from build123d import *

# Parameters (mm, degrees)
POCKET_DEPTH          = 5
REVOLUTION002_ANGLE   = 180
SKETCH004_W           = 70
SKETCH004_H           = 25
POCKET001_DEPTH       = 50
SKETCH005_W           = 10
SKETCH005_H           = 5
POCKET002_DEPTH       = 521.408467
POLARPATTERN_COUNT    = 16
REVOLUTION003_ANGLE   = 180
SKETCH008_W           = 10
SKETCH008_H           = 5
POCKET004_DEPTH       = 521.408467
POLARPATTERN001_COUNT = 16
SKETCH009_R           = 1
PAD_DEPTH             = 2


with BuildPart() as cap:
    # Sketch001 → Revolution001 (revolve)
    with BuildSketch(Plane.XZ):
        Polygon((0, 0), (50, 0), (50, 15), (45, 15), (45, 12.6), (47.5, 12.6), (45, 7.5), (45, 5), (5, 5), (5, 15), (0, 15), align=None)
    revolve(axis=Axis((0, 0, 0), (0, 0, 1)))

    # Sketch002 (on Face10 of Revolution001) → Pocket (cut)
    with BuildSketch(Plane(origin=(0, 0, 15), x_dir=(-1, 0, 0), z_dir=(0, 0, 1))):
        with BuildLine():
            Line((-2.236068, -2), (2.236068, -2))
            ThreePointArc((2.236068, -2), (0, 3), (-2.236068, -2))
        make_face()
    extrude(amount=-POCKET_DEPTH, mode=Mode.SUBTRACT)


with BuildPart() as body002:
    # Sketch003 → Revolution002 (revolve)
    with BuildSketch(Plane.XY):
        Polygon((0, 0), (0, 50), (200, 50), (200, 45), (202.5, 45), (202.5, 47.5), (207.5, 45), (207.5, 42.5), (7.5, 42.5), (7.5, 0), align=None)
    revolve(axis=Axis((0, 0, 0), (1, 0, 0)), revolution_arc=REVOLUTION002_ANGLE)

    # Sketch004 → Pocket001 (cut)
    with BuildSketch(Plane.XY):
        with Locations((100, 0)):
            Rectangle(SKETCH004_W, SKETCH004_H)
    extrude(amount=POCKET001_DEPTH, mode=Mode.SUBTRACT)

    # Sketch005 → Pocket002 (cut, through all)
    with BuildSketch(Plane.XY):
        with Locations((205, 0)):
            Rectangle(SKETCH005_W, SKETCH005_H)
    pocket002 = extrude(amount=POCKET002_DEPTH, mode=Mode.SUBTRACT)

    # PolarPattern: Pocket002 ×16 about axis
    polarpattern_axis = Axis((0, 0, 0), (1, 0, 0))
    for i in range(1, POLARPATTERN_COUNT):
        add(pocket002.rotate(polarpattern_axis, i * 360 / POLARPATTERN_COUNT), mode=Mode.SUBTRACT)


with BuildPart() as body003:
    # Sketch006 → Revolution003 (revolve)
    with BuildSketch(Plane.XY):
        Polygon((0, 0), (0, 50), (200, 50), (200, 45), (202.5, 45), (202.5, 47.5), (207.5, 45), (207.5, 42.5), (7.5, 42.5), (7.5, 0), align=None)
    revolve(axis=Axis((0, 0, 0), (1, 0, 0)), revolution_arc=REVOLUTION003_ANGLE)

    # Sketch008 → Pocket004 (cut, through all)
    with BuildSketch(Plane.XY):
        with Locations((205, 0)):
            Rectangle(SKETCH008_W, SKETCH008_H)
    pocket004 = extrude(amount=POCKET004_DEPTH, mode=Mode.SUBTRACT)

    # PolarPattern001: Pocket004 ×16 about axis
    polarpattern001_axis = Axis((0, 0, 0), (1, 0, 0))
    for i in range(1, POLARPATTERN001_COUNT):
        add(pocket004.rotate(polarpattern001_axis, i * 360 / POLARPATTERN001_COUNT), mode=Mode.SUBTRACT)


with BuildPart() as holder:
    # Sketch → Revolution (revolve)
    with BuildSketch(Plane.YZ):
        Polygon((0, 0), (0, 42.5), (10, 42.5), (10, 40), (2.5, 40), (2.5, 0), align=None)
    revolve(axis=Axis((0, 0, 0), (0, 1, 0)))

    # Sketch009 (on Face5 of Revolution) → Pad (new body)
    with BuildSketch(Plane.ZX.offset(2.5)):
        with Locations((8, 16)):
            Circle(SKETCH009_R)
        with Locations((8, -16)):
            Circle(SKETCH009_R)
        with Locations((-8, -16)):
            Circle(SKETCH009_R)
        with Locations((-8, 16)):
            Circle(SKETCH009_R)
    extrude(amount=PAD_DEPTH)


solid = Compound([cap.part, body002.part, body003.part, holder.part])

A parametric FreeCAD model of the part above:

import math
import FreeCAD as App
import Part
import Sketcher
from FreeCAD import Vector


def add_polygon(sketch, points):
    """Adds a closed chain of lines whose ends are joined by coincident constraints."""
    first, n = sketch.GeometryCount, len(points)
    for a, b in zip(points, points[1:] + points[:1]):
        sketch.addGeometry(Part.LineSegment(App.Vector(*a, 0), App.Vector(*b, 0)), False)
    for i in range(n):
        sketch.addConstraint(Sketcher.Constraint("Coincident", first + i, 2, first + (i + 1) % n, 1))

doc = App.newDocument("Part")
body = doc.addObject("PartDesign::Body", "Body")

sketch1 = body.newObject("Sketcher::SketchObject", "Sketch")
sketch1.AttachmentSupport = (doc.getObject("XZ_Plane"), [""])
sketch1.MapMode = "FlatFace"
add_polygon(sketch1, [(0, 0), (50, 0), (50, 15), (45, 15), (45, 12.6), (47.5, 12.6), (45, 7.5), (45, 5), (5, 5), (5, 15), (0, 15)])
sketch1.addConstraint([
    Sketcher.Constraint("Horizontal", 0),
    Sketcher.Constraint("Vertical", 1),
    Sketcher.Constraint("Horizontal", 2),
    Sketcher.Constraint("Vertical", 3),
    Sketcher.Constraint("Horizontal", 4),
    Sketcher.Constraint("Vertical", 6),
    Sketcher.Constraint("Horizontal", 7),
    Sketcher.Constraint("Vertical", 8),
    Sketcher.Constraint("Horizontal", 9),
    Sketcher.Constraint("Vertical", 10),
    Sketcher.Constraint("Coincident", 10, 2, -1, 1),
    Sketcher.Constraint("Horizontal", 2, 2, 8, 2),
    Sketcher.Constraint("Vertical", 3, 2, 5, 2),
    Sketcher.Constraint("Equal", 2, 9),
    Sketcher.Constraint("Equal", 4, 6),
    Sketcher.Constraint("DistanceX", 0, 1, 0, 2, 50.0),
    Sketcher.Constraint("DistanceX", 2, 2, 2, 1, 5.0),
    Sketcher.Constraint("DistanceY", 1, 1, 1, 2, 15.0),
    Sketcher.Constraint("DistanceY", 8, 1, 8, 2, 10.0),
    Sketcher.Constraint("DistanceX", 4, 1, 4, 2, 2.5),
    Sketcher.Constraint("DistanceY", 3, 2, 3, 1, 2.4),
])
revolution = body.newObject("PartDesign::Revolution", "Revolution")
revolution.Profile = sketch1
revolution.ReferenceAxis = (sketch1, ["V_Axis"])
revolution.Angle = 360

sketch2 = body.newObject("Sketcher::SketchObject", "Sketch001")
sketch2.AttachmentSupport = (doc.getObject("XY_Plane"), [""])
sketch2.MapMode = "FlatFace"
sketch2.AttachmentOffset = App.Placement(Vector(0, 0, 15), App.Rotation())
sketch2.addGeometry([
    Part.LineSegment(Vector(2.236068, 2, 0), Vector(-2.236068, 2, 0)),
    Part.ArcOfCircle(Part.Circle(Vector(0, 0, 0), Vector(0, 0, 1), 3), math.radians(138.189686), math.radians(401.810314)),
], False)
sketch2.addConstraint([
    Sketcher.Constraint("Coincident", 0, 1, 1, 2),
    Sketcher.Constraint("Coincident", 1, 1, 0, 2),
    Sketcher.Constraint("Horizontal", 0),
    Sketcher.Constraint("Coincident", 1, 3, -1, 1),
    Sketcher.Constraint("Radius", 1, 3.0),
    Sketcher.Constraint("DistanceY", -1, 1, 0, 1, 2.0),
])
pocket1 = body.newObject("PartDesign::Pocket", "Pocket")
pocket1.Profile = sketch2
pocket1.Length = 5
body2 = doc.addObject("PartDesign::Body", "Body001")

sketch3 = body2.newObject("Sketcher::SketchObject", "Sketch002")
sketch3.AttachmentSupport = (doc.getObject("XY_Plane001"), [""])
sketch3.MapMode = "FlatFace"
add_polygon(sketch3, [(0, 50), (0, 0), (7.5, 0), (7.5, 42.5), (207.5, 42.5), (207.5, 45), (202.5, 47.5), (202.5, 45), (200, 45), (200, 50)])
sketch3.addConstraint([
    Sketcher.Constraint("Vertical", 0),
    Sketcher.Constraint("Horizontal", 1),
    Sketcher.Constraint("Vertical", 2),
    Sketcher.Constraint("Horizontal", 3),
    Sketcher.Constraint("Vertical", 4),
    Sketcher.Constraint("Vertical", 6),
    Sketcher.Constraint("Horizontal", 7),
    Sketcher.Constraint("Vertical", 8),
    Sketcher.Constraint("Horizontal", 9),
    Sketcher.Constraint("Coincident", 0, 2, -1, 1),
    Sketcher.Constraint("Horizontal", 4, 2, 6, 2),
    Sketcher.Constraint("Equal", 3, 9),
    Sketcher.Constraint("Equal", 7, 4),
    Sketcher.Constraint("Equal", 4, 6),
    Sketcher.Constraint("DistanceX", 3, 1, 3, 2, 200.0),
    Sketcher.Constraint("DistanceY", 0, 2, 0, 1, 50.0),
    Sketcher.Constraint("DistanceY", 8, 1, 8, 2, 5.0),
    Sketcher.Constraint("DistanceX", 1, 1, 1, 2, 7.5),
    Sketcher.Constraint("DistanceX", 7, 2, 7, 1, 2.5),
])
revolution2 = body2.newObject("PartDesign::Revolution", "Revolution001")
revolution2.Profile = sketch3
revolution2.ReferenceAxis = (sketch3, ["H_Axis"])
revolution2.Angle = 180

sketch4 = body2.newObject("Sketcher::SketchObject", "Sketch003")
sketch4.AttachmentSupport = (doc.getObject("XY_Plane001"), [""])
sketch4.MapMode = "FlatFace"
add_polygon(sketch4, [(65, 12.5), (65, -12.5), (135, -12.5), (135, 12.5)])
sketch4.addConstraint([
    Sketcher.Constraint("Vertical", 0),
    Sketcher.Constraint("Horizontal", 1),
    Sketcher.Constraint("Vertical", 2),
    Sketcher.Constraint("Horizontal", 3),
    Sketcher.Constraint("DistanceX", 1, 1, 1, 2, 70.0),
    Sketcher.Constraint("DistanceY", 0, 2, 0, 1, 25.0),
    Sketcher.Constraint("DistanceX", -1, 1, 0, 2, 65.0),
    Sketcher.Constraint("DistanceY", 0, 2, -1, 1, 12.5),
])
pocket2 = body2.newObject("PartDesign::Pocket", "Pocket001")
pocket2.Profile = sketch4
pocket2.Length = 50
pocket2.Reversed = True

sketch5 = body2.newObject("Sketcher::SketchObject", "Sketch004")
sketch5.AttachmentSupport = (doc.getObject("XY_Plane001"), [""])
sketch5.MapMode = "FlatFace"
add_polygon(sketch5, [(200, 2.5), (200, -2.5), (210, -2.5), (210, 2.5)])
sketch5.addConstraint([
    Sketcher.Constraint("Vertical", 0),
    Sketcher.Constraint("Horizontal", 1),
    Sketcher.Constraint("Vertical", 2),
    Sketcher.Constraint("Horizontal", 3),
    Sketcher.Constraint("DistanceX", 1, 1, 1, 2, 10.0),
    Sketcher.Constraint("DistanceY", 0, 2, 0, 1, 5.0),
    Sketcher.Constraint("DistanceX", -1, 1, 0, 2, 200.0),
    Sketcher.Constraint("DistanceY", 0, 2, -1, 1, 2.5),
])
pocket3 = body2.newObject("PartDesign::Pocket", "Pocket002")
pocket3.Profile = sketch5
pocket3.Type = "ThroughAll"
pocket3.Reversed = True
doc.recompute()

polarpattern = body2.newObject("PartDesign::PolarPattern", "PolarPattern")
polarpattern.Originals = [pocket3]
polarpattern.Axis = (doc.getObject("X_Axis001"), [""])
polarpattern.Angle = 360
polarpattern.Occurrences = 16
body2.Tip = polarpattern
body3 = doc.addObject("PartDesign::Body", "Body002")

sketch6 = body3.newObject("Sketcher::SketchObject", "Sketch005")
sketch6.AttachmentSupport = (doc.getObject("XY_Plane002"), [""])
sketch6.MapMode = "FlatFace"
add_polygon(sketch6, [(0, 50), (0, 0), (7.5, 0), (7.5, 42.5), (207.5, 42.5), (207.5, 45), (202.5, 47.5), (202.5, 45), (200, 45), (200, 50)])
sketch6.addConstraint([
    Sketcher.Constraint("Vertical", 0),
    Sketcher.Constraint("Horizontal", 1),
    Sketcher.Constraint("Vertical", 2),
    Sketcher.Constraint("Horizontal", 3),
    Sketcher.Constraint("Vertical", 4),
    Sketcher.Constraint("Vertical", 6),
    Sketcher.Constraint("Horizontal", 7),
    Sketcher.Constraint("Vertical", 8),
    Sketcher.Constraint("Horizontal", 9),
    Sketcher.Constraint("Coincident", 0, 2, -1, 1),
    Sketcher.Constraint("Horizontal", 4, 2, 6, 2),
    Sketcher.Constraint("Equal", 3, 9),
    Sketcher.Constraint("Equal", 7, 4),
    Sketcher.Constraint("Equal", 4, 6),
    Sketcher.Constraint("DistanceX", 3, 1, 3, 2, 200.0),
    Sketcher.Constraint("DistanceY", 0, 2, 0, 1, 50.0),
    Sketcher.Constraint("DistanceY", 8, 1, 8, 2, 5.0),
    Sketcher.Constraint("DistanceX", 1, 1, 1, 2, 7.5),
    Sketcher.Constraint("DistanceX", 7, 2, 7, 1, 2.5),
])
revolution3 = body3.newObject("PartDesign::Revolution", "Revolution002")
revolution3.Profile = sketch6
revolution3.ReferenceAxis = (sketch6, ["H_Axis"])
revolution3.Angle = 180

sketch7 = body3.newObject("Sketcher::SketchObject", "Sketch006")
sketch7.AttachmentSupport = (doc.getObject("XY_Plane002"), [""])
sketch7.MapMode = "FlatFace"
add_polygon(sketch7, [(200, 2.5), (200, -2.5), (210, -2.5), (210, 2.5)])
sketch7.addConstraint([
    Sketcher.Constraint("Vertical", 0),
    Sketcher.Constraint("Horizontal", 1),
    Sketcher.Constraint("Vertical", 2),
    Sketcher.Constraint("Horizontal", 3),
    Sketcher.Constraint("DistanceX", 1, 1, 1, 2, 10.0),
    Sketcher.Constraint("DistanceY", 0, 2, 0, 1, 5.0),
    Sketcher.Constraint("DistanceX", -1, 1, 0, 2, 200.0),
    Sketcher.Constraint("DistanceY", 0, 2, -1, 1, 2.5),
])
pocket4 = body3.newObject("PartDesign::Pocket", "Pocket003")
pocket4.Profile = sketch7
pocket4.Type = "ThroughAll"
pocket4.Reversed = True
doc.recompute()

polarpattern2 = body3.newObject("PartDesign::PolarPattern", "PolarPattern001")
polarpattern2.Originals = [pocket4]
polarpattern2.Axis = (doc.getObject("X_Axis002"), [""])
polarpattern2.Angle = 360
polarpattern2.Occurrences = 16
body3.Tip = polarpattern2
body4 = doc.addObject("PartDesign::Body", "Body003")

sketch8 = body4.newObject("Sketcher::SketchObject", "Sketch007")
sketch8.AttachmentSupport = (doc.getObject("YZ_Plane003"), [""])
sketch8.MapMode = "FlatFace"
add_polygon(sketch8, [(0, 42.5), (0, 0), (2.5, 0), (2.5, 40), (10, 40), (10, 42.5)])
sketch8.addConstraint([
    Sketcher.Constraint("Vertical", 0),
    Sketcher.Constraint("Horizontal", 1),
    Sketcher.Constraint("Vertical", 2),
    Sketcher.Constraint("Horizontal", 3),
    Sketcher.Constraint("Vertical", 4),
    Sketcher.Constraint("Horizontal", 5),
    Sketcher.Constraint("Coincident", 0, 2, -1, 1),
    Sketcher.Constraint("Equal", 1, 4),
    Sketcher.Constraint("DistanceX", 5, 2, 5, 1, 10.0),
    Sketcher.Constraint("DistanceY", 2, 1, 2, 2, 40.0),
    Sketcher.Constraint("DistanceX", 1, 1, 1, 2, 2.5),
])
revolution4 = body4.newObject("PartDesign::Revolution", "Revolution003")
revolution4.Profile = sketch8
revolution4.ReferenceAxis = (sketch8, ["H_Axis"])
revolution4.Angle = 360

sketch9 = body4.newObject("Sketcher::SketchObject", "Sketch008")
sketch9.AttachmentSupport = (doc.getObject("XZ_Plane003"), [""])
sketch9.MapMode = "FlatFace"
sketch9.AttachmentOffset = App.Placement(Vector(0, 0, -2.5), App.Rotation())
sketch9.addGeometry([
    Part.Circle(Vector(16, 8, 0), Vector(0, 0, 1), 1),
    Part.Circle(Vector(-16, 8, 0), Vector(0, 0, 1), 1),
    Part.Circle(Vector(-16, -8, 0), Vector(0, 0, 1), 1),
    Part.Circle(Vector(16, -8, 0), Vector(0, 0, 1), 1),
], False)
sketch9.addConstraint([
    Sketcher.Constraint("Equal", 0, 1),
    Sketcher.Constraint("Equal", 1, 2),
    Sketcher.Constraint("Equal", 2, 3),
    Sketcher.Constraint("Symmetric", 0, 3, 2, 3, -1, 1),
    Sketcher.Constraint("Symmetric", 1, 3, 3, 3, -1, 1),
    Sketcher.Constraint("Symmetric", 0, 3, 1, 3, -2),
    Sketcher.Constraint("Diameter", 0, 2.0),
    Sketcher.Constraint("DistanceX", -1, 1, 0, 3, 16.0),
    Sketcher.Constraint("DistanceY", -1, 1, 0, 3, 8.0),
])
pad1 = body4.newObject("PartDesign::Pad", "Pad")
pad1.Profile = sketch9
pad1.Length = 2
pad1.Reversed = True

doc.recompute()
